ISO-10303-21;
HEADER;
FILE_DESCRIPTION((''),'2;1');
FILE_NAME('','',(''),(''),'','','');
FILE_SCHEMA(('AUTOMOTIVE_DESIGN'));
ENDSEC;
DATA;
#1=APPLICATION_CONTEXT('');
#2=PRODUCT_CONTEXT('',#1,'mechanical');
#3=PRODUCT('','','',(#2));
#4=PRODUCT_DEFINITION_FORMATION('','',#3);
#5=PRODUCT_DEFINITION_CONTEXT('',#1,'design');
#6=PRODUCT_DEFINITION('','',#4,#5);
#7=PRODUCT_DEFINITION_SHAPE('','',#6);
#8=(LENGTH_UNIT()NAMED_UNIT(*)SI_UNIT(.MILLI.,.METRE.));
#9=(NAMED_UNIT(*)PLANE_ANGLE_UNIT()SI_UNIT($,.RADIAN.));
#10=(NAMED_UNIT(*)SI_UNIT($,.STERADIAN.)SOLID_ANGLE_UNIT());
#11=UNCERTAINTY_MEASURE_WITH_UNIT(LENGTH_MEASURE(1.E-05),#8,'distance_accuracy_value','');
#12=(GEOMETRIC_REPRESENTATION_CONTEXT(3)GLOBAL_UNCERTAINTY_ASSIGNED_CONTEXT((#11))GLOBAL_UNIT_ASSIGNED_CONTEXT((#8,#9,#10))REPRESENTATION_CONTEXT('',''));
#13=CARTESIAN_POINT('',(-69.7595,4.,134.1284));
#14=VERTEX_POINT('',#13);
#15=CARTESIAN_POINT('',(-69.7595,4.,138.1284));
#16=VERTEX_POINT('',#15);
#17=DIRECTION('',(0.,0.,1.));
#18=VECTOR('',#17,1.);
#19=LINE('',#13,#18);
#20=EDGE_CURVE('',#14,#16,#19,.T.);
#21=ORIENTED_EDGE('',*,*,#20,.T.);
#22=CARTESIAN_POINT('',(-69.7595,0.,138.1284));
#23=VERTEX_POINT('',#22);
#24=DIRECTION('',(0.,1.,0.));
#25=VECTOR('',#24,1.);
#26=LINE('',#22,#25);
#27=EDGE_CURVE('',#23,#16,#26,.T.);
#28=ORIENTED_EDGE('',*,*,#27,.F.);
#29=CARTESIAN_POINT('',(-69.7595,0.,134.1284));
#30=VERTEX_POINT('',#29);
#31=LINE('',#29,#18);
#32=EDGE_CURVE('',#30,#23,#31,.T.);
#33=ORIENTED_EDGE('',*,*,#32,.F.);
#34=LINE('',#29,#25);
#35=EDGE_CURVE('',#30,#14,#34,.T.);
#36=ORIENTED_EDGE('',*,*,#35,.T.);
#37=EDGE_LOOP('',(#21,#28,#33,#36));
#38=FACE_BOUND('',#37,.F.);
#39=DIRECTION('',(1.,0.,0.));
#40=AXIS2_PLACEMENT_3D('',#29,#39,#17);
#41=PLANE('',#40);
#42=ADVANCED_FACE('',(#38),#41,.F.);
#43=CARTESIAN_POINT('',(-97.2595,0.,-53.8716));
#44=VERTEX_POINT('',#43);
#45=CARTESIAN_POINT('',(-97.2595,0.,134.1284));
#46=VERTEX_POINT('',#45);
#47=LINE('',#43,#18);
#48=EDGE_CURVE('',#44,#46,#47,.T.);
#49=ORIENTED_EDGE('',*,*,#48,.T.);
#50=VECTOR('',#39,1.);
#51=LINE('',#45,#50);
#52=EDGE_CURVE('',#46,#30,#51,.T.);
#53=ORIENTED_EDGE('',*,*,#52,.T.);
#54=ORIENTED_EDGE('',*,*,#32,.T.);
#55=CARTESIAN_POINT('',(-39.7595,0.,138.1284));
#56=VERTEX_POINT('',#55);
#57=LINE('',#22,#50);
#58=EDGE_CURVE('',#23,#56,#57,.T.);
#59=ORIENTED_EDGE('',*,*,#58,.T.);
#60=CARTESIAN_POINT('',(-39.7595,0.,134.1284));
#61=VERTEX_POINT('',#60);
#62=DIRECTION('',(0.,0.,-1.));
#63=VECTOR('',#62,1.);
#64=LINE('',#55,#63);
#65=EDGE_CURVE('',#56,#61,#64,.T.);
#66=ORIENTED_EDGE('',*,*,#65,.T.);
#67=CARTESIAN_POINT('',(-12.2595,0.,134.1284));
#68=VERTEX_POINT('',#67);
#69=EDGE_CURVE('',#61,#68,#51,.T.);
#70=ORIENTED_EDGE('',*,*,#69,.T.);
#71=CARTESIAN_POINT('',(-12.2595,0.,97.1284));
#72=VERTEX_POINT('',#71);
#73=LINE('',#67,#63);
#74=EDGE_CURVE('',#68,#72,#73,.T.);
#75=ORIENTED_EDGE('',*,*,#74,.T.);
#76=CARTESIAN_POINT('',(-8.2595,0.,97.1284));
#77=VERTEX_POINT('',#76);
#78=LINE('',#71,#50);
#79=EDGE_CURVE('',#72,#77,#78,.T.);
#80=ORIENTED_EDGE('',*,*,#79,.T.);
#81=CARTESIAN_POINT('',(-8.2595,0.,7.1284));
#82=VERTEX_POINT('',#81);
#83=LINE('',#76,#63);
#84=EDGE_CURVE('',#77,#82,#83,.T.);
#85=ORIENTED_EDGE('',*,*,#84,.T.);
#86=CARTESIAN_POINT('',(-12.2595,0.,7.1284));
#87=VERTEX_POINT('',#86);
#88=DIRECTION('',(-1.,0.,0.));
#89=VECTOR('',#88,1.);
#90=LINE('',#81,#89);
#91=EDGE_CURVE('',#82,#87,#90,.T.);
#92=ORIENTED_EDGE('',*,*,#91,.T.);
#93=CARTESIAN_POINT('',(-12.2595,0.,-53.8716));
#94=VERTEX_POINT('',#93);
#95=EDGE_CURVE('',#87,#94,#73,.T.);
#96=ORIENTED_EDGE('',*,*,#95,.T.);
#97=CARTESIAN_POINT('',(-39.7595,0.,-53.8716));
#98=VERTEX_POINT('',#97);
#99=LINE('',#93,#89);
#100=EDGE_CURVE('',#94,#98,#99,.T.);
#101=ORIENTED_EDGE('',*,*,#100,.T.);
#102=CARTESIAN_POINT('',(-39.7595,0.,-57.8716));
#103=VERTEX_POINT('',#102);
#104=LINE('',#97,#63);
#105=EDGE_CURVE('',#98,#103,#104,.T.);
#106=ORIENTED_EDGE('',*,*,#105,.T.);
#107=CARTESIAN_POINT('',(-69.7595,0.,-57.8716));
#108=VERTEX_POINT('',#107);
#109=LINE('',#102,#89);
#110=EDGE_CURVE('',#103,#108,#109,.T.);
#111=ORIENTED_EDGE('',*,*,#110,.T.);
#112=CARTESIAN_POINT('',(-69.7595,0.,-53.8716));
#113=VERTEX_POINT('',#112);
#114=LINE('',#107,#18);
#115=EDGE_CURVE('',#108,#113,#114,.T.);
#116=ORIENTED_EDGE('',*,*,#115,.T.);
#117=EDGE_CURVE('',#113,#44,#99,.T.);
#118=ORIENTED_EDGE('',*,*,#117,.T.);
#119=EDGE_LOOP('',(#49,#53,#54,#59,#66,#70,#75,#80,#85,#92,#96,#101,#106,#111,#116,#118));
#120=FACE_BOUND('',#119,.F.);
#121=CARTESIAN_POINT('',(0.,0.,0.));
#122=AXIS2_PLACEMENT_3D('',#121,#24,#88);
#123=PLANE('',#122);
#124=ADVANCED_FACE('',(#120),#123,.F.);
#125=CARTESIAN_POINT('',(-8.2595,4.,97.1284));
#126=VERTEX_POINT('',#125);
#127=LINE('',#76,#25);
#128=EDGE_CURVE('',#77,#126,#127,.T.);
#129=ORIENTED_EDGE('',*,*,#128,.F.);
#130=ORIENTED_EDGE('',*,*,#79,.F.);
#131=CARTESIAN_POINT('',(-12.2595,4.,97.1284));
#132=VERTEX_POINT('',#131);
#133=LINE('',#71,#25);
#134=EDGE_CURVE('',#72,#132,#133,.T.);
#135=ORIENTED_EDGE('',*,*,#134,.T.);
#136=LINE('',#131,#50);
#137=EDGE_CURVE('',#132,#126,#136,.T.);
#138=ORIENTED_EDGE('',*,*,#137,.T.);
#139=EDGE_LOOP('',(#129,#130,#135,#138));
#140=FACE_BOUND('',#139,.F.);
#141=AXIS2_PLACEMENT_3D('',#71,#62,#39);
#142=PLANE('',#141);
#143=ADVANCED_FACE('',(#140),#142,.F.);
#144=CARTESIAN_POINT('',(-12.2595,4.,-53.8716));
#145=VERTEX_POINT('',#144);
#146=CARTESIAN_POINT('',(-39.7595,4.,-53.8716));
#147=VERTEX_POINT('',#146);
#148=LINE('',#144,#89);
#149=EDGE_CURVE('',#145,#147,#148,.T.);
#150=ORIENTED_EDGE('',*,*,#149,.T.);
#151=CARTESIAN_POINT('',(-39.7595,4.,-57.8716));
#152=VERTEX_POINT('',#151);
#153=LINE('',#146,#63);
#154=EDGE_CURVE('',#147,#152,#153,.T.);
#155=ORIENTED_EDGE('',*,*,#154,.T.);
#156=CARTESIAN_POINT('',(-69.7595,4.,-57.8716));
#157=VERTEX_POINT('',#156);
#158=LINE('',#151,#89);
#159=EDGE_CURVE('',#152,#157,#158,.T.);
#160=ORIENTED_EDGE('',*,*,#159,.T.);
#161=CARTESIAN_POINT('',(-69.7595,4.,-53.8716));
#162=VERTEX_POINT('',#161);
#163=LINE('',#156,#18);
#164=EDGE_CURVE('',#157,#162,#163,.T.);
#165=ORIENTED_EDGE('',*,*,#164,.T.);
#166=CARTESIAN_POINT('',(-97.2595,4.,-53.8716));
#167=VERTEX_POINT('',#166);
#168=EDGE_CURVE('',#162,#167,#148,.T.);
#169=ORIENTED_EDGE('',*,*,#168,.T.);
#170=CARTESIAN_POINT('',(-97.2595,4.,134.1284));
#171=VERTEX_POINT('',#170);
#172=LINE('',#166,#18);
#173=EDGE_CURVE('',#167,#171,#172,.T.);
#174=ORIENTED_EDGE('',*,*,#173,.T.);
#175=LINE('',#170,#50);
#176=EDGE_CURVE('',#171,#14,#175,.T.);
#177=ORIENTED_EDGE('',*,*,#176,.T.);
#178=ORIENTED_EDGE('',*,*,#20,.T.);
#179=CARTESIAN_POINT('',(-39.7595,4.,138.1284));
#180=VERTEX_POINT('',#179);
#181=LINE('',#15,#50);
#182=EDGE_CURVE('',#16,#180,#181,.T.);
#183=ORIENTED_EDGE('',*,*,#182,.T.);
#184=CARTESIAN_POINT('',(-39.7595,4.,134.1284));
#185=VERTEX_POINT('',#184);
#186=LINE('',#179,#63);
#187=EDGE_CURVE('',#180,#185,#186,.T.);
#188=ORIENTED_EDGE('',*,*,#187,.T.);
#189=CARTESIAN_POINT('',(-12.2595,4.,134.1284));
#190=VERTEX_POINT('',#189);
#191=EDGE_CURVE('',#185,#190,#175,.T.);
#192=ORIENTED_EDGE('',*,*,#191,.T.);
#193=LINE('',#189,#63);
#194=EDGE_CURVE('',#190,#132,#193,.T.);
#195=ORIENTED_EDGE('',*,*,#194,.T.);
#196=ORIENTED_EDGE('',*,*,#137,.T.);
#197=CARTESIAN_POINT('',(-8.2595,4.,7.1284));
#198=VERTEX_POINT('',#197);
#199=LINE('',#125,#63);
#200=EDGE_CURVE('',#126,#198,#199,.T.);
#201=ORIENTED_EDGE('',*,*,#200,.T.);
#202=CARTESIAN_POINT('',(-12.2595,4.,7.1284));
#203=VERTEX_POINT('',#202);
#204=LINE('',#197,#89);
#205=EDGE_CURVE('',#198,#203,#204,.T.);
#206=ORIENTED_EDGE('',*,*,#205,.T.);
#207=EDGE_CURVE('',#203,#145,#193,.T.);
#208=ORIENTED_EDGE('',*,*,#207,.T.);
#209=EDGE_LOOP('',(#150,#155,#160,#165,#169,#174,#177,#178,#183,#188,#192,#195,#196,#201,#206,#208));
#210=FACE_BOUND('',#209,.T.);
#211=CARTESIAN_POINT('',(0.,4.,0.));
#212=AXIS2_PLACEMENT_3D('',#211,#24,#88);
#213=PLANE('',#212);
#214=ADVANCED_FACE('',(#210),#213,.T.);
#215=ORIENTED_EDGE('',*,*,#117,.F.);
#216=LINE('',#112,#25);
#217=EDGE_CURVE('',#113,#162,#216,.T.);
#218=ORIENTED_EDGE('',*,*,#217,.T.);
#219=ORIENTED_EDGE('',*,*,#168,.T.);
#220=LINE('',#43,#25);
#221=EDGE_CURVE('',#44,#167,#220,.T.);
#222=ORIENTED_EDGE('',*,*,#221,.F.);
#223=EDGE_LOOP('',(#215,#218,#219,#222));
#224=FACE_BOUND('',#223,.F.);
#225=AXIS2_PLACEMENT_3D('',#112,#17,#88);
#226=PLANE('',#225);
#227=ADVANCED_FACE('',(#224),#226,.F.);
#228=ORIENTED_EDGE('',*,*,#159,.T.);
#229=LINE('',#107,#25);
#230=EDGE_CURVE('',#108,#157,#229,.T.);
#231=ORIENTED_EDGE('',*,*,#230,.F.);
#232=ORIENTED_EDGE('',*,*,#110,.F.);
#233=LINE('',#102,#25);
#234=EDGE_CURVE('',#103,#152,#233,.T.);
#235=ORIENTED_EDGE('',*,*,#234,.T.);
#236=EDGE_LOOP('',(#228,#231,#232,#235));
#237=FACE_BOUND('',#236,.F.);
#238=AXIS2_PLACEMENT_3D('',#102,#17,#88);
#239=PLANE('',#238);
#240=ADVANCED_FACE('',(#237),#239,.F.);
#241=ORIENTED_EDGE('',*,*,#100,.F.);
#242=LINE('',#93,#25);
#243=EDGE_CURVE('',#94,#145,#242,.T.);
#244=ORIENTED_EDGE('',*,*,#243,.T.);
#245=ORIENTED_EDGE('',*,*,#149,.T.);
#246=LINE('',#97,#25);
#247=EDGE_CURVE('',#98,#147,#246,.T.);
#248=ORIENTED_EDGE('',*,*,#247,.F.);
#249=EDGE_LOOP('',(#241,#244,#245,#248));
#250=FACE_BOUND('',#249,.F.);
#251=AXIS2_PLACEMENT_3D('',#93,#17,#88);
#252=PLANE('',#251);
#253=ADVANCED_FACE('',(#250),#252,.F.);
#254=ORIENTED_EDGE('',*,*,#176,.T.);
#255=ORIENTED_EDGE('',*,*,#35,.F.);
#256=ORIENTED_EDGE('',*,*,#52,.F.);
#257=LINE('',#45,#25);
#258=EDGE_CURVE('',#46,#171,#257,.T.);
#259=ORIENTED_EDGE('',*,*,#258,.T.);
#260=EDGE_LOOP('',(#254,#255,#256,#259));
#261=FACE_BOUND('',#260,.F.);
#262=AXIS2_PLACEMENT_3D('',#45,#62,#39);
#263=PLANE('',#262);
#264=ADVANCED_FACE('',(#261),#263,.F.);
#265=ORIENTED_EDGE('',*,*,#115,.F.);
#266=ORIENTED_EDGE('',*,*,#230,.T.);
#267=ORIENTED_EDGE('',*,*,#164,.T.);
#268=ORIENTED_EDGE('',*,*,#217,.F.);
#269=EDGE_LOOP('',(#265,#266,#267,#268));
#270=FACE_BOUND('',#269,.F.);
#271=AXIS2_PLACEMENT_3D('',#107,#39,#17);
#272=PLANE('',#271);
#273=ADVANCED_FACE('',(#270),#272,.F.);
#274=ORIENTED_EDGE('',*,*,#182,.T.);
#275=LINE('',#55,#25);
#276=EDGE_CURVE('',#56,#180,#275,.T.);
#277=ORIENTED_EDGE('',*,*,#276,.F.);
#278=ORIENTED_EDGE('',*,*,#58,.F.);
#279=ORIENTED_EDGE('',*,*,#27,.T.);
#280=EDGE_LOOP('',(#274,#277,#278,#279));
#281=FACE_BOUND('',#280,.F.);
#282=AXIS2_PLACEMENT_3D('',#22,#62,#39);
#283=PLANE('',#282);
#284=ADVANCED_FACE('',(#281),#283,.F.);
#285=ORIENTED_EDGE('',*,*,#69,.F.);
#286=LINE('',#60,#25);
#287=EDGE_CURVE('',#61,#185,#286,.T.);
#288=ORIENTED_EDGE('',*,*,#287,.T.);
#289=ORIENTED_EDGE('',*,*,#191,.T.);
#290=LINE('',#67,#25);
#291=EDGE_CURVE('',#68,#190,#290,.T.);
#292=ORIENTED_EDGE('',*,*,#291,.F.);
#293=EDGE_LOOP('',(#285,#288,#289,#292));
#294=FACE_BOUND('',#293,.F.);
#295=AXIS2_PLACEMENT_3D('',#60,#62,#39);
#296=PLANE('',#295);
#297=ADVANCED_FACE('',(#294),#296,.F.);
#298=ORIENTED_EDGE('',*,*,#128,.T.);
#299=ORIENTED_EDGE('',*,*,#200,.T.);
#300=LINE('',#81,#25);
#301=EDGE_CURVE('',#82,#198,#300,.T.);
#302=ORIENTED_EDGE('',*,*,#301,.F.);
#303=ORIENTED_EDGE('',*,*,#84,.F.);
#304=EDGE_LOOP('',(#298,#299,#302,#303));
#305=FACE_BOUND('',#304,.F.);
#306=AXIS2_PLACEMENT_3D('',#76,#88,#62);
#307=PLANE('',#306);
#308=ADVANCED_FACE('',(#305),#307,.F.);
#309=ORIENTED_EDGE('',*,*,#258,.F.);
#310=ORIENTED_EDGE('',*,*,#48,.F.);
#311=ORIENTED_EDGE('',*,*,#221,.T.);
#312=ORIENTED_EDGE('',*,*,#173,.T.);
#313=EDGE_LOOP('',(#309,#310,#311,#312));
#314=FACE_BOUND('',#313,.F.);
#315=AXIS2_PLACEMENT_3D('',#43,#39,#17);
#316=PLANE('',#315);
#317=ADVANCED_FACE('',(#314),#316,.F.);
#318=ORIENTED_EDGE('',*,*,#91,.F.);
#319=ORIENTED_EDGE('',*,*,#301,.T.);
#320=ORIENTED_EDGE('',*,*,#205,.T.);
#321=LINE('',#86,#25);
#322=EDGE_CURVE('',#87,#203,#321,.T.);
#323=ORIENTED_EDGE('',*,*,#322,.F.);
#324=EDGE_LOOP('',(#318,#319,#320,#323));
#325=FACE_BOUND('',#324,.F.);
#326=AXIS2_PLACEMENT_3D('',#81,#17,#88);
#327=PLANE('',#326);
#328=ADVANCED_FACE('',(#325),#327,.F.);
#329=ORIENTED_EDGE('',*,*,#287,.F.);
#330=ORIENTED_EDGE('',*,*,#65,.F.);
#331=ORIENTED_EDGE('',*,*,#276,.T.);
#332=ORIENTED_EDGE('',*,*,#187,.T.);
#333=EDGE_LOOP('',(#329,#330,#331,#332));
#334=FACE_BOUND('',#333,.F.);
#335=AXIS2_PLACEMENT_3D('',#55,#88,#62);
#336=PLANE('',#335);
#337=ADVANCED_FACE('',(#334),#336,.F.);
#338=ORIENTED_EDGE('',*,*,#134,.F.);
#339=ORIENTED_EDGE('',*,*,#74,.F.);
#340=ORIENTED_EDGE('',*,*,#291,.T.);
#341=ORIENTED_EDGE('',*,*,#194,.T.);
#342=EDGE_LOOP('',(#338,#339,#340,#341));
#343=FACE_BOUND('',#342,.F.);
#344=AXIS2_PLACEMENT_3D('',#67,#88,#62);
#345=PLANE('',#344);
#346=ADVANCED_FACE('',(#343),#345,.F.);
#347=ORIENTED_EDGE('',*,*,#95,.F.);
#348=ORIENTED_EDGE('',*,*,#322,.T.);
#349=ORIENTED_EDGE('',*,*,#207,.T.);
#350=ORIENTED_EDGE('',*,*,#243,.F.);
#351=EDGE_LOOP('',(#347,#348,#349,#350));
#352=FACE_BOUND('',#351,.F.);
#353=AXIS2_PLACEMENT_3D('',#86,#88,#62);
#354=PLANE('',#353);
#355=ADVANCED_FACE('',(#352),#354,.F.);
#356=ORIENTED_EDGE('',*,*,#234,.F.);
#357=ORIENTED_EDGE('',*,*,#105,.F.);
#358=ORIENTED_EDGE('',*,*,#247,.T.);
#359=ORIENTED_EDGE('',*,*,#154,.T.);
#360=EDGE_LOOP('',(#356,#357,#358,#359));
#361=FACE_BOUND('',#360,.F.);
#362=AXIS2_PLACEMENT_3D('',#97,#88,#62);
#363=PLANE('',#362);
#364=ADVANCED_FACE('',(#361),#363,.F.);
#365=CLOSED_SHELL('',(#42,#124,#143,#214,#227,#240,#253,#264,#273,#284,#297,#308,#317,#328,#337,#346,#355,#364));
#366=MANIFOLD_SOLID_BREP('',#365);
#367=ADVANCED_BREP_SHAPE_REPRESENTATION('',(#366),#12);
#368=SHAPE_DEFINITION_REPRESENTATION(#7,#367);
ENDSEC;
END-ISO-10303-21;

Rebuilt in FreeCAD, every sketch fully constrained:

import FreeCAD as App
import Part
import Sketcher
Q = App.Units.Quantity

doc = App.newDocument("Part")
body = doc.addObject("PartDesign::Body", "Body")

# Sketch on XZ plane
sketch1 = body.newObject("Sketcher::SketchObject", "Sketch")
sketch1.AttachmentSupport = (doc.getObject("XZ_Plane"), [""])
sketch1.MapMode = "FlatFace"
sketch1.addGeometry([
    Part.LineSegment(App.Vector(-97.3, -53.9, 0), App.Vector(-97.3, 134.1, 0)),  # 0
    Part.LineSegment(App.Vector(-97.3, 134.1, 0), App.Vector(-69.8, 134.1, 0)),  # 1
    Part.LineSegment(App.Vector(-69.8, 134.1, 0), App.Vector(-69.8, 138.1, 0)),  # 2
    Part.LineSegment(App.Vector(-69.8, 138.1, 0), App.Vector(-39.8, 138.1, 0)),  # 3
    Part.LineSegment(App.Vector(-39.8, 138.1, 0), App.Vector(-39.8, 134.1, 0)),  # 4
    Part.LineSegment(App.Vector(-39.8, 134.1, 0), App.Vector(-12.3, 134.1, 0)),  # 5
    Part.LineSegment(App.Vector(-12.3, 134.1, 0), App.Vector(-12.3, 97.1, 0)),  # 6
    Part.LineSegment(App.Vector(-12.3, 97.1, 0), App.Vector(-8.3, 97.1, 0)),  # 7
    Part.LineSegment(App.Vector(-8.3, 97.1, 0), App.Vector(-8.3, 7.1, 0)),  # 8
    Part.LineSegment(App.Vector(-8.3, 7.1, 0), App.Vector(-12.3, 7.1, 0)),  # 9
    Part.LineSegment(App.Vector(-12.3, 7.1, 0), App.Vector(-12.3, -53.9, 0)),  # 10
    Part.LineSegment(App.Vector(-12.3, -53.9, 0), App.Vector(-39.8, -53.9, 0)),  # 11
    Part.LineSegment(App.Vector(-39.8, -53.9, 0), App.Vector(-39.8, -57.9, 0)),  # 12
    Part.LineSegment(App.Vector(-39.8, -57.9, 0), App.Vector(-69.8, -57.9, 0)),  # 13
    Part.LineSegment(App.Vector(-69.8, -57.9, 0), App.Vector(-69.8, -53.9, 0)),  # 14
    Part.LineSegment(App.Vector(-69.8, -53.9, 0), App.Vector(-97.3, -53.9, 0)),  # 15
], False)
sketch1.addConstraint([
    Sketcher.Constraint("Coincident", 0, 2, 1, 1),
    Sketcher.Constraint("Coincident", 1, 2, 2, 1),
    Sketcher.Constraint("Coincident", 2, 2, 3, 1),
    Sketcher.Constraint("Coincident", 3, 2, 4, 1),
    Sketcher.Constraint("Coincident", 4, 2, 5, 1),
    Sketcher.Constraint("Coincident", 5, 2, 6, 1),
    Sketcher.Constraint("Coincident", 6, 2, 7, 1),
    Sketcher.Constraint("Coincident", 7, 2, 8, 1),
    Sketcher.Constraint("Coincident", 8, 2, 9, 1),
    Sketcher.Constraint("Coincident", 9, 2, 10, 1),
    Sketcher.Constraint("Coincident", 10, 2, 11, 1),
    Sketcher.Constraint("Coincident", 11, 2, 12, 1),
    Sketcher.Constraint("Coincident", 12, 2, 13, 1),
    Sketcher.Constraint("Coincident", 13, 2, 14, 1),
    Sketcher.Constraint("Coincident", 14, 2, 15, 1),
    Sketcher.Constraint("Coincident", 15, 2, 0, 1),
    Sketcher.Constraint("Vertical", 0),
    Sketcher.Constraint("Horizontal", 1),
    Sketcher.Constraint("Vertical", 2),
    Sketcher.Constraint("Horizontal", 3),
    Sketcher.Constraint("Vertical", 4),
    Sketcher.Constraint("Horizontal", 5),
    Sketcher.Constraint("Vertical", 6),
    Sketcher.Constraint("Horizontal", 7),
    Sketcher.Constraint("Vertical", 8),
    Sketcher.Constraint("Horizontal", 9),
    Sketcher.Constraint("Vertical", 10),
    Sketcher.Constraint("Horizontal", 11),
    Sketcher.Constraint("Vertical", 12),
    Sketcher.Constraint("Horizontal", 13),
    Sketcher.Constraint("Vertical", 14),
    Sketcher.Constraint("Horizontal", 15),
    Sketcher.Constraint("Horizontal", 1, 2, 4, 2),
    Sketcher.Constraint("Horizontal", 11, 2, 14, 2),
    Sketcher.Constraint("Vertical", 6, 2, 9, 2),
    Sketcher.Constraint("Vertical", 4, 2, 11, 2),
    Sketcher.Constraint("Vertical", 2, 2, 13, 2),
    Sketcher.Constraint("Equal", 1, 5),
    Sketcher.Constraint("Equal", 9, 2),
    Sketcher.Constraint("Equal", 4, 12),
    Sketcher.Constraint("DistanceX", 3, 1, 3, 2, Q("30 mm")),
    Sketcher.Constraint("DistanceX", 7, 1, 7, 2, Q("4 mm")),
    Sketcher.Constraint("DistanceY", 6, 2, 6, 1, Q("37 mm")),
    Sketcher.Constraint("DistanceY", 8, 2, 8, 1, Q("90 mm")),
    Sketcher.Constraint("DistanceY", 10, 2, 10, 1, Q("61 mm")),
    Sketcher.Constraint("DistanceX", 0, 2, 5, 2, Q("85 mm")),
    Sketcher.Constraint("DistanceX", 0, 2, -1, 1, Q("97.2595 mm")),
    Sketcher.Constraint("DistanceY", -1, 1, 0, 2, Q("134.1284 mm")),
])
pad1 = body.newObject("PartDesign::Pad", "Pad")
pad1.Profile = sketch1
pad1.Length = 4
pad1.Reversed = True

doc.recompute()
